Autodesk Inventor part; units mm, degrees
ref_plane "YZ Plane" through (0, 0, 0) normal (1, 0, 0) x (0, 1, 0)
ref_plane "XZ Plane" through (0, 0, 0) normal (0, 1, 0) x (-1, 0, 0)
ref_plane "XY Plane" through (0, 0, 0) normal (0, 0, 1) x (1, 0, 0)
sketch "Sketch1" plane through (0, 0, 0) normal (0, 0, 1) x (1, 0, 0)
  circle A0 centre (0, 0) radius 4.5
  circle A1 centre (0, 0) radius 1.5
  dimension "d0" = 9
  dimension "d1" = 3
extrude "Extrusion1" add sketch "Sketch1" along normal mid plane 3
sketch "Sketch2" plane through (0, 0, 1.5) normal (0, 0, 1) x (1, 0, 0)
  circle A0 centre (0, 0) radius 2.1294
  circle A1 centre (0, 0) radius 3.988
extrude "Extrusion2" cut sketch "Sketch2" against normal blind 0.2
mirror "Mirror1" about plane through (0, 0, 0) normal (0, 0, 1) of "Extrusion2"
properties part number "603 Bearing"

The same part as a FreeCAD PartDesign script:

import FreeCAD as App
import Part
import Sketcher

doc = App.newDocument("Part")
body = doc.addObject("PartDesign::Body", "Body")

# Sketch on XY plane
sketch1 = doc.addObject("Sketcher::SketchObject", "Sketch")
body.addObject(sketch1)
sketch1.AttachmentSupport = (doc.XY_Plane, [""])
sketch1.MapMode = "FlatFace"
sketch1.addGeometry([
    Part.Circle(App.Vector(0, 0, 0), App.Vector(0, 0, 1), 4.5),
    Part.Circle(App.Vector(0, 0, 0), App.Vector(0, 0, 1), 1.5),
], False)
sketch1.addConstraint([
    Sketcher.Constraint("Coincident", 0, 3, -1, 1),
    Sketcher.Constraint("Coincident", 1, 3, -1, 1),
    Sketcher.Constraint("Diameter", 0, 9.0),
    Sketcher.Constraint("Diameter", 1, 3.0),
])
pad1 = doc.addObject("PartDesign::Pad", "Pad")
body.addObject(pad1)
pad1.Profile = sketch1
pad1.Length = 3
pad1.Midplane = True

# Sketch on XY plane
sketch2 = doc.addObject("Sketcher::SketchObject", "Sketch001")
body.addObject(sketch2)
sketch2.AttachmentSupport = (doc.XY_Plane, [""])
sketch2.MapMode = "FlatFace"
sketch2.AttachmentOffset = App.Placement(App.Vector(0, 0, 1.5), App.Rotation())
sketch2.addGeometry([
    Part.Circle(App.Vector(0, 0, 0), App.Vector(0, 0, 1), 4),
    Part.Circle(App.Vector(0, 0, 0), App.Vector(0, 0, 1), 2.1),
], False)
sketch2.addConstraint([
    Sketcher.Constraint("Coincident", 0, 3, -1, 1),
    Sketcher.Constraint("Coincident", 1, 3, -1, 1),
    Sketcher.Constraint("Diameter", 0, 7.976),
    Sketcher.Constraint("Diameter", 1, 4.2588),
])
pocket1 = doc.addObject("PartDesign::Pocket", "Pocket")
body.addObject(pocket1)
pocket1.Profile = sketch2
pocket1.Length = 0.2
doc.recompute()

mirrored = doc.addObject("PartDesign::Mirrored", "Mirrored")
body.addObject(mirrored)
mirrored.Originals = [pocket1]
mirrored.MirrorPlane = (doc.XY_Plane, [""])
body.Tip = mirrored

doc.recompute()
